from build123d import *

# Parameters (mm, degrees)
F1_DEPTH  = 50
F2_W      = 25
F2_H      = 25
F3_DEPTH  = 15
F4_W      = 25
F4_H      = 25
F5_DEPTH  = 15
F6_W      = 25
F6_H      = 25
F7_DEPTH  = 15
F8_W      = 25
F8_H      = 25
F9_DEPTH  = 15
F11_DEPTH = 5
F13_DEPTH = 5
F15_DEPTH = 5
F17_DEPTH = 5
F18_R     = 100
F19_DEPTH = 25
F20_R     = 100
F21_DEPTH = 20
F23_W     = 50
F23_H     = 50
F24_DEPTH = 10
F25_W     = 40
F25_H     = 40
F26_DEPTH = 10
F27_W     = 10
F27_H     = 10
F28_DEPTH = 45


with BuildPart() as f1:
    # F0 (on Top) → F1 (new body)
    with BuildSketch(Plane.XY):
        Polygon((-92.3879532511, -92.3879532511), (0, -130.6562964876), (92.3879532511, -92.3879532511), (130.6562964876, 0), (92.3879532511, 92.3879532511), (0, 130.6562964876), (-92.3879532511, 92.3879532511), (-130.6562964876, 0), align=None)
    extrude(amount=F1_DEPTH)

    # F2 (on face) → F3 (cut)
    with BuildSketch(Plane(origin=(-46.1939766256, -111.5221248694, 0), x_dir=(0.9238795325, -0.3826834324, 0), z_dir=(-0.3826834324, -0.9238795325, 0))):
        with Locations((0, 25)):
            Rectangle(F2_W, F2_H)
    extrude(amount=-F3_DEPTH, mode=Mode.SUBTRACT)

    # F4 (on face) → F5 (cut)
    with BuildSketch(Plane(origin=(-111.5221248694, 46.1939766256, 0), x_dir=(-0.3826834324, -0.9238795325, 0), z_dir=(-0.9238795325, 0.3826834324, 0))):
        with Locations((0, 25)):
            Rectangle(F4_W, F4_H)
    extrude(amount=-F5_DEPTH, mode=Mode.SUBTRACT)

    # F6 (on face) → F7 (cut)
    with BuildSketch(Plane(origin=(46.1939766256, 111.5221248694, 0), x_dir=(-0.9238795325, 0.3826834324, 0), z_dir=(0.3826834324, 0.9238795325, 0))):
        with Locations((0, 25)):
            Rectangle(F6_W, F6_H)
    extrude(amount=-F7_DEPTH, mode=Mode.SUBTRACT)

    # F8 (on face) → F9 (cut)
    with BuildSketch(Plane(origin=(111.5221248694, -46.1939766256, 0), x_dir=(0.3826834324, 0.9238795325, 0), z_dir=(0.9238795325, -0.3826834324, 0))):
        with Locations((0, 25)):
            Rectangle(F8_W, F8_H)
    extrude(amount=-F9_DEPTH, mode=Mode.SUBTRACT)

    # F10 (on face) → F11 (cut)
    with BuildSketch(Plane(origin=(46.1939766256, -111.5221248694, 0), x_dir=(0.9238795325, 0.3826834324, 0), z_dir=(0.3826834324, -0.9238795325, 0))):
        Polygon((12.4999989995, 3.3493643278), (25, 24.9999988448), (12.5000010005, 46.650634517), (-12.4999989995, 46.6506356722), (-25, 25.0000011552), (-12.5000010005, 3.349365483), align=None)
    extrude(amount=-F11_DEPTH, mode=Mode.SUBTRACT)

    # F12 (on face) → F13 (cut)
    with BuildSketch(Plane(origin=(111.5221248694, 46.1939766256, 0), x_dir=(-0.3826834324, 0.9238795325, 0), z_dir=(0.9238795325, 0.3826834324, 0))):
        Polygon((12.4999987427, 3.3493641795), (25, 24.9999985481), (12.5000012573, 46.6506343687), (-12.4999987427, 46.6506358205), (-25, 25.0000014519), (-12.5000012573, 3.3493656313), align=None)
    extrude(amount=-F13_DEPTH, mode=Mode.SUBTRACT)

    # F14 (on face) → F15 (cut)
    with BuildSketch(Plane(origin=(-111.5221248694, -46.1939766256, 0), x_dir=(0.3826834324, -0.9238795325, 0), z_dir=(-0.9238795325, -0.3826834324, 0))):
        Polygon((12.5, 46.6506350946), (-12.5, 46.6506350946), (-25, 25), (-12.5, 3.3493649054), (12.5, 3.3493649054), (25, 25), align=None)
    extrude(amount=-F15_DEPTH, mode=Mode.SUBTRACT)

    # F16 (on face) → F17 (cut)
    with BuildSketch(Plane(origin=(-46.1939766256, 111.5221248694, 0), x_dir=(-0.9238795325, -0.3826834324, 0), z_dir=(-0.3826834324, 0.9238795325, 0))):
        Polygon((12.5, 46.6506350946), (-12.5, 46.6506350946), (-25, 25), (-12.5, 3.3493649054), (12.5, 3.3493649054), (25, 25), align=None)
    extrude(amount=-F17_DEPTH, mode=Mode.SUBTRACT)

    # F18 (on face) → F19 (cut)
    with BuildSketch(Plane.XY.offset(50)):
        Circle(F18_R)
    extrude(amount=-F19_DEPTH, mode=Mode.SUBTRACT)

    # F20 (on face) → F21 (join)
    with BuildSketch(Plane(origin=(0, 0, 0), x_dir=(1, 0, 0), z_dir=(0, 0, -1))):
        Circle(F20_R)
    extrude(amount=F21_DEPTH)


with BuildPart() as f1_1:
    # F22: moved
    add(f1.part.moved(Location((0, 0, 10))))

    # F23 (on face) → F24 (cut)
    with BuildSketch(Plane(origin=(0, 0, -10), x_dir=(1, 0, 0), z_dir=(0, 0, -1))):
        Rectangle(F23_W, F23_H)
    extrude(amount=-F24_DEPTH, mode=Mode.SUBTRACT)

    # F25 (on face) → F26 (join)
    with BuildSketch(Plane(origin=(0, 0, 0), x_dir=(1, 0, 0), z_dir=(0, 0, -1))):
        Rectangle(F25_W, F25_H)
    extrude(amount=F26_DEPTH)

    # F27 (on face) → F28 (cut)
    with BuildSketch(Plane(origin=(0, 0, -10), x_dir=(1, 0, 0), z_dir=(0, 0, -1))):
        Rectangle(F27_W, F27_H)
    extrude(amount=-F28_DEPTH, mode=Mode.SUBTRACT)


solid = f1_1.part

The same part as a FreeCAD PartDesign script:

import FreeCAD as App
import Part
import Sketcher
from FreeCAD import Vector
Q = App.Units.Quantity


def add_polygon(sketch, points):
    """Adds a closed chain of lines whose ends are joined by coincident constraints."""
    first, n = sketch.GeometryCount, len(points)
    for a, b in zip(points, points[1:] + points[:1]):
        sketch.addGeometry(Part.LineSegment(App.Vector(*a, 0), App.Vector(*b, 0)), False)
    for i in range(n):
        sketch.addConstraint(Sketcher.Constraint("Coincident", first + i, 2, first + (i + 1) % n, 1))

doc = App.newDocument("Part")
params = doc.addObject("Spreadsheet::Sheet", "Params")
for row, (alias, value) in enumerate([
    ("sketch1_length", "100 mm"),
    ("pad1_length", "50 mm"),
    ("sketch2_width", "25 mm"),
    ("pocket1_length", "15 mm"),
    ("sketch3_width", "25 mm"),
    ("pocket2_length", "15 mm"),
    ("sketch4_width", "25 mm"),
    ("pocket3_length", "15 mm"),
    ("sketch5_width", "25 mm"),
    ("pocket4_length", "15 mm"),
    ("sketch6_width", "25 mm"),
    ("sketch6_length", "25 mm"),
    ("pocket5_length", "5 mm"),
    ("sketch7_width", "25 mm"),
    ("sketch7_length", "25 mm"),
    ("pocket6_length", "5 mm"),
    ("sketch8_width", "25 mm"),
    ("sketch8_length", "25 mm"),
    ("pocket7_length", "5 mm"),
    ("sketch9_width", "25 mm"),
    ("sketch9_length", "25 mm"),
    ("pocket8_length", "5 mm"),
    ("sketch10_diameter", "200 mm"),
    ("pocket9_length", "25 mm"),
    ("sketch11_diameter", "200 mm"),
    ("pad2_length", "20 mm"),
    ("sketch12_width", "50 mm"),
    ("pocket10_length", "10 mm"),
    ("sketch13_width", "40 mm"),
    ("pad3_length", "10 mm"),
    ("sketch14_width", "10 mm"),
    ("pocket11_length", "45 mm"),
], start=1):
    params.set(f"A{row}", alias)
    params.set(f"B{row}", "=" + value)
    params.setAlias(f"B{row}", alias)

body = doc.addObject("PartDesign::Body", "Body")

sketch1 = body.newObject("Sketcher::SketchObject", "Sketch")
sketch1.AttachmentSupport = (doc.getObject("XY_Plane"), [""])
sketch1.MapMode = "FlatFace"
add_polygon(sketch1, [(-92, -92), (0, -131), (92, -92), (131, 0), (92, 92), (0, 131), (-92, 92), (-131, 0)])
sketch1.addConstraint([
    Sketcher.Constraint("Symmetric", 0, 2, 4, 2, -1, 1),
    Sketcher.Constraint("Symmetric", 1, 2, 5, 2, -1, 1),
    Sketcher.Constraint("Symmetric", 2, 2, 6, 2, -1, 1),
    Sketcher.Constraint("Symmetric", 3, 2, 7, 2, -1, 1),
    Sketcher.Constraint("Symmetric", 3, 2, 5, 2, -2),
    Sketcher.Constraint("PointOnObject", 0, 2, -2),
    Sketcher.Constraint("PointOnObject", 2, 2, -1),
    Sketcher.Constraint("Perpendicular", 0, 2),
    Sketcher.Constraint("Equal", 1, 2),
    Sketcher.Constraint("Distance", 0, Q("100 mm")),
    Sketcher.Constraint("Angle", 0, Q("-22.5 deg")),
])
sketch1.setExpression("Constraints[17]", "Params.sketch1_length")
pad1 = body.newObject("PartDesign::Pad", "Pad")
pad1.Profile = sketch1
pad1.setExpression("Length", "Params.pad1_length")

sketch2 = body.newObject("Sketcher::SketchObject", "Sketch001")
sketch2.Placement = App.Placement(Vector(-46.193977, -111.522125, 0), App.Rotation(Vector(0.923879532, -0.382683432, 0), Vector(0, 0, 0.999999999), Vector(-0.382683432, -0.923879532, 0), "ZXY"))
add_polygon(sketch2, [(-12, 37), (-12, 12), (12, 12), (12, 37)])
sketch2.addConstraint([
    Sketcher.Constraint("Vertical", 0),
    Sketcher.Constraint("Horizontal", 1),
    Sketcher.Constraint("Vertical", 2),
    Sketcher.Constraint("Horizontal", 3),
    Sketcher.Constraint("Equal", 3, 0),
    Sketcher.Constraint("DistanceX", 1, 1, 1, 2, Q("25 mm")),
    Sketcher.Constraint("DistanceX", 0, 2, -1, 1, Q("12.5 mm")),
    Sketcher.Constraint("DistanceY", -1, 1, 0, 2, Q("12.5 mm")),
])
sketch2.setExpression("Constraints[9]", "Params.sketch2_width")
pocket1 = body.newObject("PartDesign::Pocket", "Pocket")
pocket1.Profile = sketch2
pocket1.setExpression("Length", "Params.pocket1_length")

sketch3 = body.newObject("Sketcher::SketchObject", "Sketch002")
sketch3.Placement = App.Placement(Vector(-111.522125, 46.193977, 0), App.Rotation(Vector(-0.382683432, -0.923879532, 0), Vector(0, 0, 0.999999999), Vector(-0.923879532, 0.382683432, 0), "ZXY"))
add_polygon(sketch3, [(-12, 37), (-12, 12), (12, 12), (12, 37)])
sketch3.addConstraint([
    Sketcher.Constraint("Vertical", 0),
    Sketcher.Constraint("Horizontal", 1),
    Sketcher.Constraint("Vertical", 2),
    Sketcher.Constraint("Horizontal", 3),
    Sketcher.Constraint("Equal", 3, 0),
    Sketcher.Constraint("DistanceX", 1, 1, 1, 2, Q("25 mm")),
    Sketcher.Constraint("DistanceX", 0, 2, -1, 1, Q("12.5 mm")),
    Sketcher.Constraint("DistanceY", -1, 1, 0, 2, Q("12.5 mm")),
])
sketch3.setExpression("Constraints[9]", "Params.sketch3_width")
pocket2 = body.newObject("PartDesign::Pocket", "Pocket001")
pocket2.Profile = sketch3
pocket2.setExpression("Length", "Params.pocket2_length")

sketch4 = body.newObject("Sketcher::SketchObject", "Sketch003")
sketch4.Placement = App.Placement(Vector(46.193977, 111.522125, 0), App.Rotation(Vector(-0.923879532, 0.382683432, 0), Vector(0, 0, 0.999999999), Vector(0.382683432, 0.923879532, 0), "ZXY"))
add_polygon(sketch4, [(-12, 37), (-12, 12), (12, 12), (12, 37)])
sketch4.addConstraint([
    Sketcher.Constraint("Vertical", 0),
    Sketcher.Constraint("Horizontal", 1),
    Sketcher.Constraint("Vertical", 2),
    Sketcher.Constraint("Horizontal", 3),
    Sketcher.Constraint("Equal", 3, 0),
    Sketcher.Constraint("DistanceX", 1, 1, 1, 2, Q("25 mm")),
    Sketcher.Constraint("DistanceX", 0, 2, -1, 1, Q("12.5 mm")),
    Sketcher.Constraint("DistanceY", -1, 1, 0, 2, Q("12.5 mm")),
])
sketch4.setExpression("Constraints[9]", "Params.sketch4_width")
pocket3 = body.newObject("PartDesign::Pocket", "Pocket002")
pocket3.Profile = sketch4
pocket3.setExpression("Length", "Params.pocket3_length")

sketch5 = body.newObject("Sketcher::SketchObject", "Sketch004")
sketch5.Placement = App.Placement(Vector(111.522125, -46.193977, 0), App.Rotation(Vector(0.382683432, 0.923879532, 0), Vector(0, 0, 0.999999999), Vector(0.923879532, -0.382683432, 0), "ZXY"))
add_polygon(sketch5, [(-12, 37), (-12, 12), (12, 12), (12, 37)])
sketch5.addConstraint([
    Sketcher.Constraint("Vertical", 0),
    Sketcher.Constraint("Horizontal", 1),
    Sketcher.Constraint("Vertical", 2),
    Sketcher.Constraint("Horizontal", 3),
    Sketcher.Constraint("Equal", 3, 0),
    Sketcher.Constraint("DistanceX", 1, 1, 1, 2, Q("25 mm")),
    Sketcher.Constraint("DistanceX", 0, 2, -1, 1, Q("12.5 mm")),
    Sketcher.Constraint("DistanceY", -1, 1, 0, 2, Q("12.5 mm")),
])
sketch5.setExpression("Constraints[9]", "Params.sketch5_width")
pocket4 = body.newObject("PartDesign::Pocket", "Pocket003")
pocket4.Profile = sketch5
pocket4.setExpression("Length", "Params.pocket4_length")

sketch6 = body.newObject("Sketcher::SketchObject", "Sketch005")
sketch6.Placement = App.Placement(Vector(46.193977, -111.522125, 0), App.Rotation(Vector(0.923879532, 0.382683432, 0), Vector(0, 0, 0.999999999), Vector(0.382683432, -0.923879532, 0), "ZXY"))
add_polygon(sketch6, [(12, 3), (25, 25), (13, 47), (-12, 47), (-25, 25), (-13, 3)])
sketch6.addConstraint([
    Sketcher.Constraint("Horizontal", 2),
    Sketcher.Constraint("Horizontal", 5),
    Sketcher.Constraint("Symmetric", 0, 2, 3, 2, -2),
    Sketcher.Constraint("Parallel", 0, 3),
    Sketcher.Constraint("Parallel", 1, 4),
    Sketcher.Constraint("Equal", 2, 5),
    Sketcher.Constraint("Equal", 0, 1),
    Sketcher.Constraint("DistanceX", 2, 2, 2, 1, Q("25 mm")),
    Sketcher.Constraint("Angle", 0, Q("59.999997 deg")),
    Sketcher.Constraint("Distance", 0, Q("25 mm")),
    Sketcher.Constraint("DistanceY", -1, 1, 0, 2, Q("24.999999 mm")),
])
sketch6.setExpression("Constraints[13]", "Params.sketch6_width")
sketch6.setExpression("Constraints[15]", "Params.sketch6_length")
pocket5 = body.newObject("PartDesign::Pocket", "Pocket004")
pocket5.Profile = sketch6
pocket5.setExpression("Length", "Params.pocket5_length")

sketch7 = body.newObject("Sketcher::SketchObject", "Sketch006")
sketch7.Placement = App.Placement(Vector(111.522125, 46.193977, 0), App.Rotation(Vector(-0.382683432, 0.923879532, 0), Vector(0, 0, 0.999999999), Vector(0.923879532, 0.382683432, 0), "ZXY"))
add_polygon(sketch7, [(12, 3), (25, 25), (13, 47), (-12, 47), (-25, 25), (-13, 3)])
sketch7.addConstraint([
    Sketcher.Constraint("Horizontal", 2),
    Sketcher.Constraint("Horizontal", 5),
    Sketcher.Constraint("Symmetric", 0, 2, 3, 2, -2),
    Sketcher.Constraint("Parallel", 0, 3),
    Sketcher.Constraint("Parallel", 1, 4),
    Sketcher.Constraint("Equal", 2, 5),
    Sketcher.Constraint("Equal", 0, 1),
    Sketcher.Constraint("DistanceX", 2, 2, 2, 1, Q("25 mm")),
    Sketcher.Constraint("Angle", 0, Q("59.999997 deg")),
    Sketcher.Constraint("Distance", 0, Q("25 mm")),
    Sketcher.Constraint("DistanceY", -1, 1, 0, 2, Q("24.999998 mm")),
])
sketch7.setExpression("Constraints[13]", "Params.sketch7_width")
sketch7.setExpression("Constraints[15]", "Params.sketch7_length")
pocket6 = body.newObject("PartDesign::Pocket", "Pocket005")
pocket6.Profile = sketch7
pocket6.setExpression("Length", "Params.pocket6_length")

sketch8 = body.newObject("Sketcher::SketchObject", "Sketch007")
sketch8.Placement = App.Placement(Vector(-111.522125, -46.193977, 0), App.Rotation(Vector(0.382683432, -0.923879532, 0), Vector(0, 0, 0.999999999), Vector(-0.923879532, -0.382683432, 0), "ZXY"))
add_polygon(sketch8, [(12, 47), (-12, 47), (-25, 25), (-12, 3), (12, 3), (25, 25)])
sketch8.addConstraint([
    Sketcher.Constraint("Horizontal", 0),
    Sketcher.Constraint("Horizontal", 3),
    Sketcher.Constraint("Symmetric", 1, 2, 4, 2, -2),
    Sketcher.Constraint("Parallel", 1, 4),
    Sketcher.Constraint("Parallel", 2, 5),
    Sketcher.Constraint("Vertical", 0, 2, 2, 2),
    Sketcher.Constraint("Vertical", 3, 2, 5, 2),
    Sketcher.Constraint("DistanceX", 0, 2, 0, 1, Q("25 mm")),
    Sketcher.Constraint("Angle", 1, Q("-120 deg")),
    Sketcher.Constraint("Distance", 1, Q("25 mm")),
    Sketcher.Constraint("DistanceY", -1, 1, 1, 2, Q("25 mm")),
])
sketch8.setExpression("Constraints[13]", "Params.sketch8_width")
sketch8.setExpression("Constraints[15]", "Params.sketch8_length")
pocket7 = body.newObject("PartDesign::Pocket", "Pocket006")
pocket7.Profile = sketch8
pocket7.setExpression("Length", "Params.pocket7_length")

sketch9 = body.newObject("Sketcher::SketchObject", "Sketch008")
sketch9.Placement = App.Placement(Vector(-46.193977, 111.522125, 0), App.Rotation(Vector(-0.923879532, -0.382683432, 0), Vector(0, 0, 0.999999999), Vector(-0.382683432, 0.923879532, 0), "ZXY"))
add_polygon(sketch9, [(12, 47), (-12, 47), (-25, 25), (-12, 3), (12, 3), (25, 25)])
sketch9.addConstraint([
    Sketcher.Constraint("Horizontal", 0),
    Sketcher.Constraint("Horizontal", 3),
    Sketcher.Constraint("Symmetric", 1, 2, 4, 2, -2),
    Sketcher.Constraint("Parallel", 1, 4),
    Sketcher.Constraint("Parallel", 2, 5),
    Sketcher.Constraint("Vertical", 0, 2, 2, 2),
    Sketcher.Constraint("Vertical", 3, 2, 5, 2),
    Sketcher.Constraint("DistanceX", 0, 2, 0, 1, Q("25 mm")),
    Sketcher.Constraint("Angle", 1, Q("-120 deg")),
    Sketcher.Constraint("Distance", 1, Q("25 mm")),
    Sketcher.Constraint("DistanceY", -1, 1, 1, 2, Q("25 mm")),
])
sketch9.setExpression("Constraints[13]", "Params.sketch9_width")
sketch9.setExpression("Constraints[15]", "Params.sketch9_length")
pocket8 = body.newObject("PartDesign::Pocket", "Pocket007")
pocket8.Profile = sketch9
pocket8.setExpression("Length", "Params.pocket8_length")

sketch10 = body.newObject("Sketcher::SketchObject", "Sketch009")
sketch10.AttachmentSupport = (doc.getObject("XY_Plane"), [""])
sketch10.MapMode = "FlatFace"
sketch10.AttachmentOffset = App.Placement(Vector(0, 0, 50), App.Rotation())
sketch10.addGeometry(Part.Circle(Vector(0, 0, 0), Vector(0, 0, 1), 100), False)
sketch10.addConstraint([
    Sketcher.Constraint("Coincident", 0, 3, -1, 1),
    Sketcher.Constraint("Diameter", 0, Q("200 mm")),
])
sketch10.setExpression("Constraints[1]", "Params.sketch10_diameter")
pocket9 = body.newObject("PartDesign::Pocket", "Pocket008")
pocket9.Profile = sketch10
pocket9.setExpression("Length", "Params.pocket9_length")

sketch11 = body.newObject("Sketcher::SketchObject", "Sketch010")
sketch11.AttachmentSupport = (doc.getObject("XY_Plane"), [""])
sketch11.MapMode = "FlatFace"
sketch11.addGeometry(Part.Circle(Vector(0, 0, 0), Vector(0, 0, 1), 100), False)
sketch11.addConstraint([
    Sketcher.Constraint("Coincident", 0, 3, -1, 1),
    Sketcher.Constraint("Diameter", 0, Q("200 mm")),
])
sketch11.setExpression("Constraints[1]", "Params.sketch11_diameter")
pad2 = body.newObject("PartDesign::Pad", "Pad001")
pad2.Profile = sketch11
pad2.setExpression("Length", "Params.pad2_length")
pad2.Reversed = True
body2 = doc.addObject("PartDesign::Body", "Body001")
doc.recompute()

body.Placement = App.Placement(Vector(0, 0, 10), App.Rotation(Vector(0, 0, 1), 0))
boolean = body2.newObject("PartDesign::Boolean", "Boolean")
boolean.Type = "Fuse"
boolean.addObjects([body])

sketch12 = body2.newObject("Sketcher::SketchObject", "Sketch011")
sketch12.AttachmentSupport = (doc.getObject("XY_Plane001"), [""])
sketch12.MapMode = "FlatFace"
sketch12.AttachmentOffset = App.Placement(Vector(0, 0, -10), App.Rotation())
add_polygon(sketch12, [(-25, -25), (-25, 25), (25, 25), (25, -25)])
sketch12.addConstraint([
    Sketcher.Constraint("Vertical", 0),
    Sketcher.Constraint("Horizontal", 1),
    Sketcher.Constraint("Vertical", 2),
    Sketcher.Constraint("Horizontal", 3),
    Sketcher.Constraint("Symmetric", 0, 2, 2, 2, -1, 1),
    Sketcher.Constraint("Equal", 3, 0),
    Sketcher.Constraint("DistanceX", 1, 1, 1, 2, Q("50 mm")),
])
sketch12.setExpression("Constraints[10]", "Params.sketch12_width")
pocket10 = body2.newObject("PartDesign::Pocket", "Pocket009")
pocket10.Profile = sketch12
pocket10.setExpression("Length", "Params.pocket10_length")
pocket10.Reversed = True

sketch13 = body2.newObject("Sketcher::SketchObject", "Sketch012")
sketch13.AttachmentSupport = (doc.getObject("XY_Plane001"), [""])
sketch13.MapMode = "FlatFace"
add_polygon(sketch13, [(-20, -20), (-20, 20), (20, 20), (20, -20)])
sketch13.addConstraint([
    Sketcher.Constraint("Vertical", 0),
    Sketcher.Constraint("Horizontal", 1),
    Sketcher.Constraint("Vertical", 2),
    Sketcher.Constraint("Horizontal", 3),
    Sketcher.Constraint("Symmetric", 0, 2, 2, 2, -1, 1),
    Sketcher.Constraint("Equal", 3, 0),
    Sketcher.Constraint("DistanceX", 1, 1, 1, 2, Q("40 mm")),
])
sketch13.setExpression("Constraints[10]", "Params.sketch13_width")
pad3 = body2.newObject("PartDesign::Pad", "Pad002")
pad3.Profile = sketch13
pad3.setExpression("Length", "Params.pad3_length")
pad3.Reversed = True

sketch14 = body2.newObject("Sketcher::SketchObject", "Sketch013")
sketch14.AttachmentSupport = (doc.getObject("XY_Plane001"), [""])
sketch14.MapMode = "FlatFace"
sketch14.AttachmentOffset = App.Placement(Vector(0, 0, -10), App.Rotation())
add_polygon(sketch14, [(-5, -5), (-5, 5), (5, 5), (5, -5)])
sketch14.addConstraint([
    Sketcher.Constraint("Vertical", 0),
    Sketcher.Constraint("Horizontal", 1),
    Sketcher.Constraint("Vertical", 2),
    Sketcher.Constraint("Horizontal", 3),
    Sketcher.Constraint("Symmetric", 0, 2, 2, 2, -1, 1),
    Sketcher.Constraint("Equal", 3, 0),
    Sketcher.Constraint("DistanceX", 1, 1, 1, 2, Q("10 mm")),
])
sketch14.setExpression("Constraints[10]", "Params.sketch14_width")
pocket11 = body2.newObject("PartDesign::Pocket", "Pocket010")
pocket11.Profile = sketch14
pocket11.setExpression("Length", "Params.pocket11_length")
pocket11.Reversed = True

doc.recompute()
